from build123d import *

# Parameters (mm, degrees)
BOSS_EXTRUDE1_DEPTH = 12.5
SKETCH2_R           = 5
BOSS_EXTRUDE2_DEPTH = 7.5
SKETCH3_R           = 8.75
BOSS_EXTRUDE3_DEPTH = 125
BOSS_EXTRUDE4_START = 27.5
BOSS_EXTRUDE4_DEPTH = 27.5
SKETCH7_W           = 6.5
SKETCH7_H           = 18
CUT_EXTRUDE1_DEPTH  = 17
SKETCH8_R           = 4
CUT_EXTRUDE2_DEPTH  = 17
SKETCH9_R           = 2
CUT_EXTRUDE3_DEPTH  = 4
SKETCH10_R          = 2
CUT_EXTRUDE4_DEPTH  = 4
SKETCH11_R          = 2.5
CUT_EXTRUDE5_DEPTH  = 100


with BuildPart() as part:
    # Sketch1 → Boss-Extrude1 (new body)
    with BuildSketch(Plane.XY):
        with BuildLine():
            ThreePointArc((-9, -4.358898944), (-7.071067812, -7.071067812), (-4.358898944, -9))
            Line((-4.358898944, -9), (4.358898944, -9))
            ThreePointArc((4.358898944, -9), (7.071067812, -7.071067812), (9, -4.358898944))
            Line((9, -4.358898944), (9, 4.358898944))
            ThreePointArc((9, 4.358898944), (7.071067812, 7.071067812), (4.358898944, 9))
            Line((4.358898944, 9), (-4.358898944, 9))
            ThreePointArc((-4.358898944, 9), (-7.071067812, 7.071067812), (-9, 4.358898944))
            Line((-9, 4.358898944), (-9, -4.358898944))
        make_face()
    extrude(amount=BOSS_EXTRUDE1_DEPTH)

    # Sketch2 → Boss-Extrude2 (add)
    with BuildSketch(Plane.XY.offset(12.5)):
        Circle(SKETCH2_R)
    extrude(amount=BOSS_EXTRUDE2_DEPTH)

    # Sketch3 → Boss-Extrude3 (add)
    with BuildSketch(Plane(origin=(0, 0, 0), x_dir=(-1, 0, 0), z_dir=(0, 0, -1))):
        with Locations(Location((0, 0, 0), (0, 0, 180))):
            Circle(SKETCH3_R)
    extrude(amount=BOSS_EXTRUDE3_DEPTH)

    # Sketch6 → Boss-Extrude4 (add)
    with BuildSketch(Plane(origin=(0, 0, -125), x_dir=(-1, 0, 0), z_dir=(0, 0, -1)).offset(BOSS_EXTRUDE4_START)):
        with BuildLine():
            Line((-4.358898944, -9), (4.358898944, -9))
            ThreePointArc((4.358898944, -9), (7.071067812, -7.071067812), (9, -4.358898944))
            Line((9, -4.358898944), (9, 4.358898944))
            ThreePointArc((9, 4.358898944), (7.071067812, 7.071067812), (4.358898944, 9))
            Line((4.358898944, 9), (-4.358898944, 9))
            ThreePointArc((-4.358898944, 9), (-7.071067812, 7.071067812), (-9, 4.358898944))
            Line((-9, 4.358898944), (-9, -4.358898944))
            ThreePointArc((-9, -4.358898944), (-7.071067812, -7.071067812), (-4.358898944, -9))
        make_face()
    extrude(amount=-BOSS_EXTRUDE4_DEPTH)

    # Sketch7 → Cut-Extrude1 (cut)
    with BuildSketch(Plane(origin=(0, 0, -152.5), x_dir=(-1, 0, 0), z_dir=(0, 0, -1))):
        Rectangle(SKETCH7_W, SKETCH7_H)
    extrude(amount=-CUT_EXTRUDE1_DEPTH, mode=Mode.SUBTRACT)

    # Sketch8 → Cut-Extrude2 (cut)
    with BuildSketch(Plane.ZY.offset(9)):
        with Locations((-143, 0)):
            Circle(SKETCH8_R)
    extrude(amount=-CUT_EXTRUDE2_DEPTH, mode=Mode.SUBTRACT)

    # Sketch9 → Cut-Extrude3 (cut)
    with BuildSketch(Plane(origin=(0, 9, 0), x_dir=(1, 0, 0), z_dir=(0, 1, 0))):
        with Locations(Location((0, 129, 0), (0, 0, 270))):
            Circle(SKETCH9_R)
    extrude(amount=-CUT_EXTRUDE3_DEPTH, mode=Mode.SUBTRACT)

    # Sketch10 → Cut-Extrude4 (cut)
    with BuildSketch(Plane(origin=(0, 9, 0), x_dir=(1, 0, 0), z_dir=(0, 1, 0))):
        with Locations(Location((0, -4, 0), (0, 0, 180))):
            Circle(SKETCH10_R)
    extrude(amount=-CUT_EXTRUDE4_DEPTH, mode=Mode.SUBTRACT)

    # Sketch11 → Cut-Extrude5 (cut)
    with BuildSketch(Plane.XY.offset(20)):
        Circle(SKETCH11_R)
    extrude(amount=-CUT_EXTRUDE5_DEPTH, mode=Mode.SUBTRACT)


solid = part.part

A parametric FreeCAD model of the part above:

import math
import FreeCAD as App
import Part
import Sketcher

V = App.Vector
Q = App.Units.Quantity

doc = App.newDocument("Part")
body = doc.addObject("PartDesign::Body", "Body")

# Sketch on XY plane
sketch1 = doc.addObject("Sketcher::SketchObject", "Sketch")
body.addObject(sketch1)
sketch1.AttachmentSupport = (doc.XY_Plane, [""])
sketch1.MapMode = "FlatFace"
sketch1.addGeometry([
    Part.ArcOfCircle(Part.Circle(V(0, 0, 0), V(0, 0, 1), 10), math.radians(-154), math.radians(-116)),  # 0
    Part.LineSegment(V(-4, -9, 0), V(4, -9, 0)),  # 1
    Part.ArcOfCircle(Part.Circle(V(0, 0, 0), V(0, 0, 1), 10), math.radians(-64), math.radians(-26)),  # 2
    Part.LineSegment(V(9, -4, 0), V(9, 4, 0)),  # 3
    Part.ArcOfCircle(Part.Circle(V(0, 0, 0), V(0, 0, 1), 10), math.radians(26), math.radians(64)),  # 4
    Part.LineSegment(V(4, 9, 0), V(-4, 9, 0)),  # 5
    Part.ArcOfCircle(Part.Circle(V(0, 0, 0), V(0, 0, 1), 10), math.radians(116), math.radians(154)),  # 6
    Part.LineSegment(V(-9, 4, 0), V(-9, -4, 0)),  # 7
], False)
sketch1.addConstraint([
    Sketcher.Constraint("Coincident", 0, 2, 1, 1),
    Sketcher.Constraint("Coincident", 1, 2, 2, 1),
    Sketcher.Constraint("Coincident", 2, 2, 3, 1),
    Sketcher.Constraint("Coincident", 3, 2, 4, 1),
    Sketcher.Constraint("Coincident", 4, 2, 5, 1),
    Sketcher.Constraint("Coincident", 5, 2, 6, 1),
    Sketcher.Constraint("Coincident", 6, 2, 7, 1),
    Sketcher.Constraint("Coincident", 7, 2, 0, 1),
    Sketcher.Constraint("Horizontal", 1),
    Sketcher.Constraint("Vertical", 3),
    Sketcher.Constraint("Horizontal", 5),
    Sketcher.Constraint("Vertical", 7),
    Sketcher.Constraint("Coincident", 0, 3, -1, 1),
    Sketcher.Constraint("Coincident", 2, 3, -1, 1),
    Sketcher.Constraint("Coincident", 4, 3, -1, 1),
    Sketcher.Constraint("Coincident", 6, 3, -1, 1),
    Sketcher.Constraint("Equal", 0, 2),
    Sketcher.Constraint("Equal", 2, 4),
    Sketcher.Constraint("Equal", 4, 6),
    Sketcher.Constraint("Horizontal", 3, 2, 6, 2),
    Sketcher.Constraint("Vertical", 1, 2, 4, 2),
    Sketcher.Constraint("Equal", 5, 3),
    Sketcher.Constraint("Radius", 0, Q("10 mm")),
    Sketcher.Constraint("DistanceY", 0, 2, -1, 1, Q("9 mm")),
])
pad1 = doc.addObject("PartDesign::Pad", "Pad")
body.addObject(pad1)
pad1.Profile = sketch1
pad1.Length = 12.5

# Sketch on XY plane
sketch2 = doc.addObject("Sketcher::SketchObject", "Sketch001")
body.addObject(sketch2)
sketch2.AttachmentSupport = (doc.XY_Plane, [""])
sketch2.MapMode = "FlatFace"
sketch2.AttachmentOffset = App.Placement(V(0, 0, 12.5), App.Rotation())
sketch2.addGeometry(Part.Circle(V(0, 0, 0), V(0, 0, 1), 5), False)
sketch2.addConstraint([
    Sketcher.Constraint("Coincident", 0, 3, -1, 1),
    Sketcher.Constraint("Diameter", 0, Q("10 mm")),
])
pad2 = doc.addObject("PartDesign::Pad", "Pad001")
body.addObject(pad2)
pad2.Profile = sketch2
pad2.Length = 7.5

# Sketch on XY plane
sketch3 = doc.addObject("Sketcher::SketchObject", "Sketch002")
body.addObject(sketch3)
sketch3.AttachmentSupport = (doc.XY_Plane, [""])
sketch3.MapMode = "FlatFace"
sketch3.addGeometry(Part.Circle(V(0, 0, 0), V(0, 0, 1), 9), False)
sketch3.addConstraint([
    Sketcher.Constraint("Coincident", 0, 3, -1, 1),
    Sketcher.Constraint("Diameter", 0, Q("17.5 mm")),
])
pad3 = doc.addObject("PartDesign::Pad", "Pad002")
body.addObject(pad3)
pad3.Profile = sketch3
pad3.Length = 125
pad3.Reversed = True

# Sketch on XY plane
sketch4 = doc.addObject("Sketcher::SketchObject", "Sketch003")
body.addObject(sketch4)
sketch4.AttachmentSupport = (doc.XY_Plane, [""])
sketch4.MapMode = "FlatFace"
sketch4.AttachmentOffset = App.Placement(V(0, 0, -152.5), App.Rotation())
sketch4.addGeometry([
    Part.LineSegment(V(4, -9, 0), V(-4, -9, 0)),  # 0
    Part.ArcOfCircle(Part.Circle(V(0, 0, 0), V(0, 0, 1), 10), math.radians(-154), math.radians(-116)),  # 1
    Part.LineSegment(V(-9, -4, 0), V(-9, 4, 0)),  # 2
    Part.ArcOfCircle(Part.Circle(V(0, 0, 0), V(0, 0, 1), 10), math.radians(116), math.radians(154)),  # 3
    Part.LineSegment(V(-4, 9, 0), V(4, 9, 0)),  # 4
    Part.ArcOfCircle(Part.Circle(V(0, 0, 0), V(0, 0, 1), 10), math.radians(26), math.radians(64)),  # 5
    Part.LineSegment(V(9, 4, 0), V(9, -4, 0)),  # 6
    Part.ArcOfCircle(Part.Circle(V(0, 0, 0), V(0, 0, 1), 10), math.radians(-64), math.radians(-26)),  # 7
], False)
sketch4.addConstraint([
    Sketcher.Constraint("Coincident", 0, 2, 1, 2),
    Sketcher.Constraint("Coincident", 1, 1, 2, 1),
    Sketcher.Constraint("Coincident", 2, 2, 3, 2),
    Sketcher.Constraint("Coincident", 3, 1, 4, 1),
    Sketcher.Constraint("Coincident", 4, 2, 5, 2),
    Sketcher.Constraint("Coincident", 5, 1, 6, 1),
    Sketcher.Constraint("Coincident", 6, 2, 7, 2),
    Sketcher.Constraint("Coincident", 7, 1, 0, 1),
    Sketcher.Constraint("Horizontal", 0),
    Sketcher.Constraint("Vertical", 2),
    Sketcher.Constraint("Horizontal", 4),
    Sketcher.Constraint("Vertical", 6),
    Sketcher.Constraint("Coincident", 1, 3, -1, 1),
    Sketcher.Constraint("Coincident", 3, 3, -1, 1),
    Sketcher.Constraint("Coincident", 5, 3, -1, 1),
    Sketcher.Constraint("Coincident", 7, 3, -1, 1),
    Sketcher.Constraint("Equal", 1, 3),
    Sketcher.Constraint("Equal", 3, 5),
    Sketcher.Constraint("Equal", 5, 7),
    Sketcher.Constraint("Horizontal", 2, 2, 5, 1),
    Sketcher.Constraint("Vertical", 0, 2, 3, 1),
    Sketcher.Constraint("Equal", 4, 2),
    Sketcher.Constraint("Radius", 1, Q("10 mm")),
    Sketcher.Constraint("DistanceY", 0, 2, -1, 1, Q("9 mm")),
])
pad4 = doc.addObject("PartDesign::Pad", "Pad003")
body.addObject(pad4)
pad4.Profile = sketch4
pad4.Length = 27.5

# Sketch on XY plane
sketch5 = doc.addObject("Sketcher::SketchObject", "Sketch004")
body.addObject(sketch5)
sketch5.AttachmentSupport = (doc.XY_Plane, [""])
sketch5.MapMode = "FlatFace"
sketch5.AttachmentOffset = App.Placement(V(0, 0, -152.5), App.Rotation())
sketch5.addGeometry([
    Part.LineSegment(V(3, 9, 0), V(3, -9, 0)),
    Part.LineSegment(V(3, -9, 0), V(-3, -9, 0)),
    Part.LineSegment(V(-3, -9, 0), V(-3, 9, 0)),
    Part.LineSegment(V(-3, 9, 0), V(3, 9, 0)),
], False)
sketch5.addConstraint([
    Sketcher.Constraint("Coincident", 0, 2, 1, 1),
    Sketcher.Constraint("Coincident", 1, 2, 2, 1),
    Sketcher.Constraint("Coincident", 2, 2, 3, 1),
    Sketcher.Constraint("Coincident", 3, 2, 0, 1),
    Sketcher.Constraint("Vertical", 0),
    Sketcher.Constraint("Horizontal", 1),
    Sketcher.Constraint("Vertical", 2),
    Sketcher.Constraint("Horizontal", 3),
    Sketcher.Constraint("Symmetric", 0, 2, 2, 2, -1, 1),
    Sketcher.Constraint("DistanceY", 0, 2, 0, 1, Q("18 mm")),
    Sketcher.Constraint("DistanceX", 1, 2, 1, 1, Q("6.5 mm")),
])
pocket1 = doc.addObject("PartDesign::Pocket", "Pocket")
body.addObject(pocket1)
pocket1.Profile = sketch5
pocket1.Length = 17
pocket1.Reversed = True

# Sketch on YZ plane
sketch6 = doc.addObject("Sketcher::SketchObject", "Sketch005")
body.addObject(sketch6)
sketch6.AttachmentSupport = (doc.YZ_Plane, [""])
sketch6.MapMode = "FlatFace"
sketch6.AttachmentOffset = App.Placement(V(0, 0, -9), App.Rotation())
sketch6.addGeometry(Part.Circle(V(0, -143, 0), V(0, 0, 1), 4), False)
sketch6.addConstraint([
    Sketcher.Constraint("PointOnObject", 0, 3, -2),
    Sketcher.Constraint("Diameter", 0, Q("8 mm")),
    Sketcher.Constraint("DistanceY", 0, 3, -1, 1, Q("143 mm")),
])
pocket2 = doc.addObject("PartDesign::Pocket", "Pocket001")
body.addObject(pocket2)
pocket2.Profile = sketch6
pocket2.Length = 17
pocket2.Reversed = True

# Sketch on XZ plane
sketch7 = doc.addObject("Sketcher::SketchObject", "Sketch006")
body.addObject(sketch7)
sketch7.AttachmentSupport = (doc.XZ_Plane, [""])
sketch7.MapMode = "FlatFace"
sketch7.AttachmentOffset = App.Placement(V(0, 0, -9), App.Rotation())
sketch7.addGeometry(Part.Circle(V(0, -129, 0), V(0, 0, 1), 2), False)
sketch7.addConstraint([
    Sketcher.Constraint("PointOnObject", 0, 3, -2),
    Sketcher.Constraint("Diameter", 0, Q("4 mm")),
    Sketcher.Constraint("DistanceY", 0, 3, -1, 1, Q("129 mm")),
])
pocket3 = doc.addObject("PartDesign::Pocket", "Pocket002")
body.addObject(pocket3)
pocket3.Profile = sketch7
pocket3.Length = 4
pocket3.Reversed = True

# Sketch on XZ plane
sketch8 = doc.addObject("Sketcher::SketchObject", "Sketch007")
body.addObject(sketch8)
sketch8.AttachmentSupport = (doc.XZ_Plane, [""])
sketch8.MapMode = "FlatFace"
sketch8.AttachmentOffset = App.Placement(V(0, 0, -9), App.Rotation())
sketch8.addGeometry(Part.Circle(V(0, 4, 0), V(0, 0, 1), 2), False)
sketch8.addConstraint([
    Sketcher.Constraint("PointOnObject", 0, 3, -2),
    Sketcher.Constraint("Diameter", 0, Q("4 mm")),
    Sketcher.Constraint("DistanceY", -1, 1, 0, 3, Q("4 mm")),
])
pocket4 = doc.addObject("PartDesign::Pocket", "Pocket003")
body.addObject(pocket4)
pocket4.Profile = sketch8
pocket4.Length = 4
pocket4.Reversed = True

# Sketch on XY plane
sketch9 = doc.addObject("Sketcher::SketchObject", "Sketch008")
body.addObject(sketch9)
sketch9.AttachmentSupport = (doc.XY_Plane, [""])
sketch9.MapMode = "FlatFace"
sketch9.AttachmentOffset = App.Placement(V(0, 0, 20), App.Rotation())
sketch9.addGeometry(Part.Circle(V(0, 0, 0), V(0, 0, 1), 2.5), False)
sketch9.addConstraint([
    Sketcher.Constraint("Coincident", 0, 3, -1, 1),
    Sketcher.Constraint("Diameter", 0, Q("5 mm")),
])
pocket5 = doc.addObject("PartDesign::Pocket", "Pocket004")
body.addObject(pocket5)
pocket5.Profile = sketch9
pocket5.Length = 100

doc.recompute()
